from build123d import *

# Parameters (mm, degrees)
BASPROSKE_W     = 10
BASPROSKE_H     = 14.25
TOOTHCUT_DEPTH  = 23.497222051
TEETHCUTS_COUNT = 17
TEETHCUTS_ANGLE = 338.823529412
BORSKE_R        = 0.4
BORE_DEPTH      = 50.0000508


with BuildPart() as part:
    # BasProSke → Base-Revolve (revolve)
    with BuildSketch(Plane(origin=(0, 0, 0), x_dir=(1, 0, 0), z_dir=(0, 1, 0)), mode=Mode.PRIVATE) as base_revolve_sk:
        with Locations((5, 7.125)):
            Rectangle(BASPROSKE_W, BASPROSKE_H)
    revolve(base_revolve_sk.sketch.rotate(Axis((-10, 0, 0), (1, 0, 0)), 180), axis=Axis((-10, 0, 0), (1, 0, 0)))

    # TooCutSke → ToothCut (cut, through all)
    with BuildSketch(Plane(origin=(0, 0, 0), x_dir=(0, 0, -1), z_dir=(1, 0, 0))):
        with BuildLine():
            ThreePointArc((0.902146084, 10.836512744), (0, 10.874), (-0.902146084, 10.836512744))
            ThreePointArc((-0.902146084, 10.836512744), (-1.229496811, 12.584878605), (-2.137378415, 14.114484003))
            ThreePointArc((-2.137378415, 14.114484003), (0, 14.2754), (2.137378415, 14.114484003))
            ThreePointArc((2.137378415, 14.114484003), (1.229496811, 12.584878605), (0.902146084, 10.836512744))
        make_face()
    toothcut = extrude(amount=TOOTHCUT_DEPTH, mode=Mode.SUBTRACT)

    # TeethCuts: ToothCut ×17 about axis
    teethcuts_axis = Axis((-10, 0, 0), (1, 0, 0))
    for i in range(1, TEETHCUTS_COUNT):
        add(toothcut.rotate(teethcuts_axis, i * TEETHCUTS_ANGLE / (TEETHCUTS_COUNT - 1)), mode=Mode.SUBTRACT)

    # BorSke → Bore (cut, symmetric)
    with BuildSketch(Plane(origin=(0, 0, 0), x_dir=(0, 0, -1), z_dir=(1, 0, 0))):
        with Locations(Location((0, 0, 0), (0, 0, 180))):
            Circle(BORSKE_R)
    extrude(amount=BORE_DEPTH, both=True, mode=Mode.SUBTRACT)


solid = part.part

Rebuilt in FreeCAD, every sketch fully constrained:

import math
import FreeCAD as App
import Part
import Sketcher

V = App.Vector
Q = App.Units.Quantity

doc = App.newDocument("Part")
body = doc.addObject("PartDesign::Body", "Body")

# Sketch on XZ plane
sketch1 = body.newObject("Sketcher::SketchObject", "Sketch")
sketch1.AttachmentSupport = (doc.getObject("XZ_Plane"), [""])
sketch1.MapMode = "FlatFace"
sketch1.addGeometry(Part.LineSegment(V(0, -14, 0), V(0, 0, 0)), False)
sketch1.addGeometry(Part.LineSegment(V(0, 0, 0), V(10, 0, 0)), False)
sketch1.addGeometry(Part.LineSegment(V(10, 0, 0), V(10, -14, 0)), False)
sketch1.addGeometry(Part.LineSegment(V(10, -14, 0), V(0, -14, 0)), False)
sketch1.addConstraint(Sketcher.Constraint("Coincident", 0, 2, 1, 1))
sketch1.addConstraint(Sketcher.Constraint("Coincident", 1, 2, 2, 1))
sketch1.addConstraint(Sketcher.Constraint("Coincident", 2, 2, 3, 1))
sketch1.addConstraint(Sketcher.Constraint("Coincident", 3, 2, 0, 1))
sketch1.addConstraint(Sketcher.Constraint("Vertical", 0))
sketch1.addConstraint(Sketcher.Constraint("Horizontal", 1))
sketch1.addConstraint(Sketcher.Constraint("Vertical", 2))
sketch1.addConstraint(Sketcher.Constraint("Horizontal", 3))
sketch1.addConstraint(Sketcher.Constraint("Coincident", 0, 2, -1, 1))
sketch1.addConstraint(Sketcher.Constraint("DistanceX", 1, 1, 1, 2, Q("10 mm")))
sketch1.addConstraint(Sketcher.Constraint("DistanceY", 0, 1, 0, 2, Q("14.25 mm")))
revolution = body.newObject("PartDesign::Revolution", "Revolution")
revolution.Profile = sketch1
revolution.ReferenceAxis = (sketch1, ["H_Axis"])
revolution.Angle = 360

# Sketch on YZ plane
sketch2 = body.newObject("Sketcher::SketchObject", "Sketch001")
sketch2.AttachmentSupport = (doc.getObject("YZ_Plane"), [""])
sketch2.MapMode = "FlatFace"
sketch2.addGeometry(Part.ArcOfCircle(Part.Circle(V(0, 0, 0), V(0, 0, 1), 10.9), math.radians(-4.76), math.radians(4.76)), False)
sketch2.addGeometry(Part.ArcOfCircle(Part.Circle(V(10.8, -6, 0), V(0, 0, 1), 5.1), math.radians(49), math.radians(89)), False)
sketch2.addGeometry(Part.ArcOfCircle(Part.Circle(V(0, 0, 0), V(0, 0, 1), 14.3), math.radians(-8.61), math.radians(8.61)), False)
sketch2.addGeometry(Part.ArcOfCircle(Part.Circle(V(10.8, 6, 0), V(0, 0, 1), 5.1), math.radians(-89), math.radians(-49)), False)
sketch2.addConstraint(Sketcher.Constraint("Coincident", 0, 1, 1, 2))
sketch2.addConstraint(Sketcher.Constraint("Coincident", 1, 1, 2, 1))
sketch2.addConstraint(Sketcher.Constraint("Coincident", 2, 2, 3, 2))
sketch2.addConstraint(Sketcher.Constraint("Coincident", 3, 1, 0, 2))
sketch2.addConstraint(Sketcher.Constraint("Coincident", 0, 3, -1, 1))
sketch2.addConstraint(Sketcher.Constraint("Coincident", 2, 3, -1, 1))
sketch2.addConstraint(Sketcher.Constraint("Equal", 1, 3))
sketch2.addConstraint(Sketcher.Constraint("Symmetric", 1, 3, 3, 3, -1))
sketch2.addConstraint(Sketcher.Constraint("Radius", 1, Q("5.1 mm")))
sketch2.addConstraint(Sketcher.Constraint("Radius", 0, Q("10.874 mm")))
sketch2.addConstraint(Sketcher.Constraint("Radius", 2, Q("14.2754 mm")))
sketch2.addConstraint(Sketcher.Constraint("DistanceX", -1, 1, 1, 3, Q("10.786502 mm")))
sketch2.addConstraint(Sketcher.Constraint("DistanceY", 1, 3, -1, 1, Q("6.001901 mm")))
pocket1 = body.newObject("PartDesign::Pocket", "Pocket")
pocket1.Profile = sketch2
pocket1.Type = "ThroughAll"
pocket1.Reversed = True
doc.recompute()

polarpattern = body.newObject("PartDesign::PolarPattern", "PolarPattern")
polarpattern.Originals = [pocket1]
polarpattern.Axis = (doc.getObject("X_Axis"), [""])
polarpattern.Angle = 360
polarpattern.Occurrences = 17
body.Tip = polarpattern

# Sketch on YZ plane
sketch3 = body.newObject("Sketcher::SketchObject", "Sketch002")
sketch3.AttachmentSupport = (doc.getObject("YZ_Plane"), [""])
sketch3.MapMode = "FlatFace"
sketch3.addGeometry(Part.Circle(V(0, 0, 0), V(0, 0, 1), 0.4), False)
sketch3.addConstraint(Sketcher.Constraint("Coincident", 0, 3, -1, 1))
sketch3.addConstraint(Sketcher.Constraint("Diameter", 0, Q("0.8 mm")))
pocket2 = body.newObject("PartDesign::Pocket", "Pocket001")
pocket2.Profile = sketch3
pocket2.Length = 100.000102
pocket2.Midplane = True

doc.recompute()
